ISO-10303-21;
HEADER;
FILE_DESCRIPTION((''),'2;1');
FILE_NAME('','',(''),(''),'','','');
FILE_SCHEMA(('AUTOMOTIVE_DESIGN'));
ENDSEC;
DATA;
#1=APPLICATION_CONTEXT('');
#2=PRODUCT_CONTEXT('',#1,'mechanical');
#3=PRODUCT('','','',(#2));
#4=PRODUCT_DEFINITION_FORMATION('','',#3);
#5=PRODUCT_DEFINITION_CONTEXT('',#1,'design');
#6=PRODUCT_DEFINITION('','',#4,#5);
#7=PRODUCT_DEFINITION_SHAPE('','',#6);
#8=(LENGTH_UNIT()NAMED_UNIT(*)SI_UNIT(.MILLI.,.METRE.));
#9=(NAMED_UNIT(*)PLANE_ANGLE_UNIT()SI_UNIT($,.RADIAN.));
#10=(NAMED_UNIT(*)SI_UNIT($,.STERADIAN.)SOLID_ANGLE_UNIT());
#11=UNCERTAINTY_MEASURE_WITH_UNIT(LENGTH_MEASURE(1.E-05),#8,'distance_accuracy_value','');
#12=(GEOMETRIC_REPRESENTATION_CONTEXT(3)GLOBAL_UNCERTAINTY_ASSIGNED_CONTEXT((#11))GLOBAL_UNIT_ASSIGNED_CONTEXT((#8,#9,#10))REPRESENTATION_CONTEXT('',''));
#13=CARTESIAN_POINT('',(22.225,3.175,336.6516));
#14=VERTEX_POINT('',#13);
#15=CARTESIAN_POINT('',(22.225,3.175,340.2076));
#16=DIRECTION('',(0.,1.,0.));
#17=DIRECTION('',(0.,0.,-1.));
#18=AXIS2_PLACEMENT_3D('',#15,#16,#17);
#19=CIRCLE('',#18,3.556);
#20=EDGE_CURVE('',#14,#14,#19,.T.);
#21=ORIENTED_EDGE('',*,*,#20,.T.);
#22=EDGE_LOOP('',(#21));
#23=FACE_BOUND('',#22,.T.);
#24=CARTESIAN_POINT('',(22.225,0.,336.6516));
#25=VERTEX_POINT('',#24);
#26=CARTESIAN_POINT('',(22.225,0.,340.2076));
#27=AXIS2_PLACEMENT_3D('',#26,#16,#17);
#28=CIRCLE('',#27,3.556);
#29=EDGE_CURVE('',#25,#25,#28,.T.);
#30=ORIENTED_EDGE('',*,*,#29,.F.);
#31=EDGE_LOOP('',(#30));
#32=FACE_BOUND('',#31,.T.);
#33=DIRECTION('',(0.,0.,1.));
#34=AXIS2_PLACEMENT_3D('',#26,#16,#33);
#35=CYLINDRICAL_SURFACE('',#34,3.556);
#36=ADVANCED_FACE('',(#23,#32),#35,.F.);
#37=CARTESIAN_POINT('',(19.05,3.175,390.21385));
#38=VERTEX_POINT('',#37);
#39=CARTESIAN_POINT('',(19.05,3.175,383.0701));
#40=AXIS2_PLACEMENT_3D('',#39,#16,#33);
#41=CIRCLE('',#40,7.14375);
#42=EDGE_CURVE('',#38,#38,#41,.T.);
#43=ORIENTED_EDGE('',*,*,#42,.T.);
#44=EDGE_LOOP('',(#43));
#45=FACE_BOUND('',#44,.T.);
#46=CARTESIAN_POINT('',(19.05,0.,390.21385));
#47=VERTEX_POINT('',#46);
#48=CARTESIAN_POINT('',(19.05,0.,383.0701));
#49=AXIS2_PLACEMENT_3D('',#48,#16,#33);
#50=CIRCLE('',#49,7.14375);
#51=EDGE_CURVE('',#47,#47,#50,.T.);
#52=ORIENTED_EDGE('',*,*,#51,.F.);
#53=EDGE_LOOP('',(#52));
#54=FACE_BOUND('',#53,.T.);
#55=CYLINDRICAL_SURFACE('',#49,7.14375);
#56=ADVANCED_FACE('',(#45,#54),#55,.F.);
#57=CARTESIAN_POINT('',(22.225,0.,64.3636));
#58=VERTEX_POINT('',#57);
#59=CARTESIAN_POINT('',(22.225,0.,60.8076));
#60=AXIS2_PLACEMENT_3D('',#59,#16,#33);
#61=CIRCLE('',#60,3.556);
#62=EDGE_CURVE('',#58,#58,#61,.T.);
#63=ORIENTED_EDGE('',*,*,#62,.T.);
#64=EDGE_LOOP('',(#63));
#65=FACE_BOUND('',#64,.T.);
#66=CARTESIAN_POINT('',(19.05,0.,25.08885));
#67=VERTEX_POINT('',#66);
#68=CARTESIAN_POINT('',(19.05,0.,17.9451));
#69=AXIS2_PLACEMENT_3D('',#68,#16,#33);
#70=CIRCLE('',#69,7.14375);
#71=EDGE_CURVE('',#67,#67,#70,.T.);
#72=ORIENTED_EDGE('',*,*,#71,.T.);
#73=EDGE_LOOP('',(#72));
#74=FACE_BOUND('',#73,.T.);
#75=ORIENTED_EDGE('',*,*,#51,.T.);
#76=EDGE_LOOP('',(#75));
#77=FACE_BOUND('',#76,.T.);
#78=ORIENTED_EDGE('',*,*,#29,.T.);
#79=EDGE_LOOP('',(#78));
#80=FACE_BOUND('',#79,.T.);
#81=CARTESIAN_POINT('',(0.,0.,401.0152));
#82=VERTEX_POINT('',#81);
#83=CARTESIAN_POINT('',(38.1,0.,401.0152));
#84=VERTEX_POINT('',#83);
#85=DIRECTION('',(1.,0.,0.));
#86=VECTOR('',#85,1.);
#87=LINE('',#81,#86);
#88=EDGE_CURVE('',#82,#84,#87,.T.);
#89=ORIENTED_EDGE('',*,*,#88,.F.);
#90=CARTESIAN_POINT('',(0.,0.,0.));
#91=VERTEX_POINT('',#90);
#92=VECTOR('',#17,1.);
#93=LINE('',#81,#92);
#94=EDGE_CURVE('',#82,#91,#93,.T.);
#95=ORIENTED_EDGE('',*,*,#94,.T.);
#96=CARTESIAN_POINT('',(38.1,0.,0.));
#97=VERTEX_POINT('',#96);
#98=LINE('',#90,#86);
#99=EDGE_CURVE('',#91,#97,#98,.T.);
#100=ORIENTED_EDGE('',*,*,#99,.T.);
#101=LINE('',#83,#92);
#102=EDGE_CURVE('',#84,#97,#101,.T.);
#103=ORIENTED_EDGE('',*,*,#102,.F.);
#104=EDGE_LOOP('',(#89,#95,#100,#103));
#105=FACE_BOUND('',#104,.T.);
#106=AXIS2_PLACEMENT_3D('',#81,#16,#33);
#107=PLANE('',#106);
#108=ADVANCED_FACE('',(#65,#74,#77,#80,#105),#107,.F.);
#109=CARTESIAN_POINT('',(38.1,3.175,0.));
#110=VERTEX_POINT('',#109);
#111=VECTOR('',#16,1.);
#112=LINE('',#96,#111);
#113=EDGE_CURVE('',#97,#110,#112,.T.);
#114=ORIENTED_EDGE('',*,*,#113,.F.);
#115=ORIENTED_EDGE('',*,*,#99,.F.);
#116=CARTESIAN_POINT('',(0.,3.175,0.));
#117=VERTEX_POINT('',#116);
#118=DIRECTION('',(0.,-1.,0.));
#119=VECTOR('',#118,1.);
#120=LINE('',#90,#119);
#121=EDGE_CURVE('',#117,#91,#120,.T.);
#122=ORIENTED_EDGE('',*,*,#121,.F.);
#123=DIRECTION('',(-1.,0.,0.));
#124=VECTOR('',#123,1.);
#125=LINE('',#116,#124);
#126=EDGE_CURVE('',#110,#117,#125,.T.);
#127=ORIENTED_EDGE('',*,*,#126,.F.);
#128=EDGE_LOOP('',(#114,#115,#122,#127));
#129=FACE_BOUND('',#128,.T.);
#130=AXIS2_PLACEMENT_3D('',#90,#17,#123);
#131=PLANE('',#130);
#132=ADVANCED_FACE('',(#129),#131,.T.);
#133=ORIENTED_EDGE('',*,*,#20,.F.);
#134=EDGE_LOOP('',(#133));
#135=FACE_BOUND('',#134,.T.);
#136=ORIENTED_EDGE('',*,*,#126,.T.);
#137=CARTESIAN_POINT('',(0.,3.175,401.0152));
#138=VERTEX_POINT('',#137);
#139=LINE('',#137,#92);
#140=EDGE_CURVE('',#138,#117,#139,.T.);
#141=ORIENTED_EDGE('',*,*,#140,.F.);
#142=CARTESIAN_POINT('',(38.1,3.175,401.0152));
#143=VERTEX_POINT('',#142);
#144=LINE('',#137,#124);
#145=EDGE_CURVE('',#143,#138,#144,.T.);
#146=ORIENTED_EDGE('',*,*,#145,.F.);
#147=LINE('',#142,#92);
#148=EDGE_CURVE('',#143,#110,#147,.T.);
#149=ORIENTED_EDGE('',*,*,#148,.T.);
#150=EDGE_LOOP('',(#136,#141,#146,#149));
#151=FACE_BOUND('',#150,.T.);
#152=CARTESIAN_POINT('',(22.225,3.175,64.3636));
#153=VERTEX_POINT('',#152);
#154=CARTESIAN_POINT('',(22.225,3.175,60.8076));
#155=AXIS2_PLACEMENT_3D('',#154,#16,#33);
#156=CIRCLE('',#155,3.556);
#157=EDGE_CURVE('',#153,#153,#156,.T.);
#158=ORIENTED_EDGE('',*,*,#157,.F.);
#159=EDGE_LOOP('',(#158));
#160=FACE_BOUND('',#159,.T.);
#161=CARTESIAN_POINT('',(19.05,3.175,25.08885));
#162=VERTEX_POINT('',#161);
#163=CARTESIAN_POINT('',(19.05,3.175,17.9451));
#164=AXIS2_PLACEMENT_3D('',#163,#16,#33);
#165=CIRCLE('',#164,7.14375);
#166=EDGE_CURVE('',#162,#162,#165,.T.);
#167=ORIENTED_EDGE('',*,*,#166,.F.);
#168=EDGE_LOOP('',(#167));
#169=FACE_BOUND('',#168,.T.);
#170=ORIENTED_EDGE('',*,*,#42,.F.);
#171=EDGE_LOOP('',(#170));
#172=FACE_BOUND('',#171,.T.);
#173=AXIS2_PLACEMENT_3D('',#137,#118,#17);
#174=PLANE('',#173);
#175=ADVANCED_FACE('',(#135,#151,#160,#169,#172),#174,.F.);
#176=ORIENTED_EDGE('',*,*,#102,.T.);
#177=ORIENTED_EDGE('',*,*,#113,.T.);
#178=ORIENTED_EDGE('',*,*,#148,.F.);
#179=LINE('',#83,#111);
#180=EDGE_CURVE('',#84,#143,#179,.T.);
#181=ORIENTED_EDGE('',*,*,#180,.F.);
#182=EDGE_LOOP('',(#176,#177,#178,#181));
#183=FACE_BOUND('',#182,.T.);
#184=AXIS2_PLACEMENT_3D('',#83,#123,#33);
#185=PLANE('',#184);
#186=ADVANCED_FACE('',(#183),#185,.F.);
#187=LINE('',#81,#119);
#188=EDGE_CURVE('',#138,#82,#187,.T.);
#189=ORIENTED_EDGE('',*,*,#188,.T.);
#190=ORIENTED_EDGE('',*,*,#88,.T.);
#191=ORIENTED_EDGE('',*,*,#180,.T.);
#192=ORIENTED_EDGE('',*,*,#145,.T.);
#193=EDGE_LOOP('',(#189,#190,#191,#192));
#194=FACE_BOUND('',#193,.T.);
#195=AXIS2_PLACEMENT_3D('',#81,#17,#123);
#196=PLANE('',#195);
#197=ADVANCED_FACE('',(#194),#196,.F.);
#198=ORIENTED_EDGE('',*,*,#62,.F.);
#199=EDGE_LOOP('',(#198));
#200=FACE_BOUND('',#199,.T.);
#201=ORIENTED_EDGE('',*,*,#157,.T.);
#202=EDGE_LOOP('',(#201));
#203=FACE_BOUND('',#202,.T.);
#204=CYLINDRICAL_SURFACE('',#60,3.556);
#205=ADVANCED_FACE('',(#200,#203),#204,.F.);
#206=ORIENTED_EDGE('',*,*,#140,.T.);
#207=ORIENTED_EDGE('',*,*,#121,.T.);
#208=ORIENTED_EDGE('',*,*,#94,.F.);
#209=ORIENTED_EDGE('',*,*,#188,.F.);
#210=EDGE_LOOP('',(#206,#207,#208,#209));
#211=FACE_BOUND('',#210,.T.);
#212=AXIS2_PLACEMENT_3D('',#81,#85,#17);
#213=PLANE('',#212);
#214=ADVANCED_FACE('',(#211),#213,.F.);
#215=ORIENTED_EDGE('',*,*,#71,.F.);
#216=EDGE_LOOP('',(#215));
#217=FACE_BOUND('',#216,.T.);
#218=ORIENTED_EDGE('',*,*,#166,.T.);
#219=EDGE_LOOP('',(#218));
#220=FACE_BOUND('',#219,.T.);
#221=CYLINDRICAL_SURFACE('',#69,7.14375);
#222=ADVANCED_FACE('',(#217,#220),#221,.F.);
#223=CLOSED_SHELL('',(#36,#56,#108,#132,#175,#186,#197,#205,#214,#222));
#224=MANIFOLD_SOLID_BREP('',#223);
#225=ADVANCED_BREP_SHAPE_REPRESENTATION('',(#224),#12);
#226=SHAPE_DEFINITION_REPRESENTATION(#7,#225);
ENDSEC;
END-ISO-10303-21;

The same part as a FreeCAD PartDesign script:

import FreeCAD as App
import Part
import Sketcher
Q = App.Units.Quantity

doc = App.newDocument("Part")
body = doc.addObject("PartDesign::Body", "Body")

sketch1 = body.newObject("Sketcher::SketchObject", "Sketch")
sketch1.AttachmentSupport = (doc.getObject("XY_Plane"), [""])
sketch1.MapMode = "FlatFace"
sketch1.addGeometry([
    Part.LineSegment(App.Vector(0, 3.2, 0), App.Vector(0, 0, 0)),
    Part.LineSegment(App.Vector(0, 0, 0), App.Vector(38.1, 0, 0)),
    Part.LineSegment(App.Vector(38.1, 0, 0), App.Vector(38.1, 3.2, 0)),
    Part.LineSegment(App.Vector(38.1, 3.2, 0), App.Vector(0, 3.2, 0)),
], False)
sketch1.addConstraint([
    Sketcher.Constraint("Coincident", 0, 2, 1, 1),
    Sketcher.Constraint("Coincident", 1, 2, 2, 1),
    Sketcher.Constraint("Coincident", 2, 2, 3, 1),
    Sketcher.Constraint("Coincident", 3, 2, 0, 1),
    Sketcher.Constraint("Vertical", 0),
    Sketcher.Constraint("Horizontal", 1),
    Sketcher.Constraint("Vertical", 2),
    Sketcher.Constraint("Horizontal", 3),
    Sketcher.Constraint("Coincident", 0, 2, -1, 1),
    Sketcher.Constraint("DistanceX", 1, 1, 1, 2, Q("1.5 in")),
    Sketcher.Constraint("DistanceY", 0, 2, 0, 1, Q("0.125 in")),
])
pad1 = body.newObject("PartDesign::Pad", "Pad")
pad1.Profile = sketch1
pad1.Length = Q("15.788 in")

sketch2 = body.newObject("Sketcher::SketchObject", "Sketch001")
sketch2.AttachmentSupport = (doc.getObject("XZ_Plane"), [""])
sketch2.MapMode = "FlatFace"
sketch2.AttachmentOffset = App.Placement(App.Vector(0, 0, -0.125 * 25.4), App.Rotation())
sketch2.addGeometry([
    Part.Circle(App.Vector(19.1, 383.1, 0), App.Vector(0, 0, 1), 7.1),
    Part.Circle(App.Vector(19.1, 17.9, 0), App.Vector(0, 0, 1), 7.1),
    Part.Circle(App.Vector(22.2, 60.8, 0), App.Vector(0, 0, 1), 3.6),
    Part.Circle(App.Vector(22.2, 340.2, 0), App.Vector(0, 0, 1), 3.6),
], False)
sketch2.addConstraint([
    Sketcher.Constraint("Equal", 0, 1),
    Sketcher.Constraint("Equal", 2, 3),
    Sketcher.Constraint("Vertical", 0, 3, 1, 3),
    Sketcher.Constraint("Vertical", 2, 3, 3, 3),
    Sketcher.Constraint("Diameter", 2, Q("0.28 in")),
    Sketcher.Constraint("Diameter", 0, Q("0.5625 in")),
    Sketcher.Constraint("DistanceY", 2, 3, 3, 3, Q("11 in")),
    Sketcher.Constraint("DistanceX", -1, 1, 0, 3, Q("0.75 in")),
    Sketcher.Constraint("DistanceX", -1, 1, 2, 3, Q("0.875 in")),
    Sketcher.Constraint("DistanceY", -1, 1, 2, 3, Q("2.394 in")),
    Sketcher.Constraint("DistanceY", 1, 3, 0, 3, Q("14.375 in")),
    Sketcher.Constraint("DistanceY", 1, 3, 2, 3, Q("1.6875 in")),
])
pocket1 = body.newObject("PartDesign::Pocket", "Pocket")
pocket1.Profile = sketch2
pocket1.Type = "ThroughAll"
pocket1.Reversed = True

doc.recompute()
